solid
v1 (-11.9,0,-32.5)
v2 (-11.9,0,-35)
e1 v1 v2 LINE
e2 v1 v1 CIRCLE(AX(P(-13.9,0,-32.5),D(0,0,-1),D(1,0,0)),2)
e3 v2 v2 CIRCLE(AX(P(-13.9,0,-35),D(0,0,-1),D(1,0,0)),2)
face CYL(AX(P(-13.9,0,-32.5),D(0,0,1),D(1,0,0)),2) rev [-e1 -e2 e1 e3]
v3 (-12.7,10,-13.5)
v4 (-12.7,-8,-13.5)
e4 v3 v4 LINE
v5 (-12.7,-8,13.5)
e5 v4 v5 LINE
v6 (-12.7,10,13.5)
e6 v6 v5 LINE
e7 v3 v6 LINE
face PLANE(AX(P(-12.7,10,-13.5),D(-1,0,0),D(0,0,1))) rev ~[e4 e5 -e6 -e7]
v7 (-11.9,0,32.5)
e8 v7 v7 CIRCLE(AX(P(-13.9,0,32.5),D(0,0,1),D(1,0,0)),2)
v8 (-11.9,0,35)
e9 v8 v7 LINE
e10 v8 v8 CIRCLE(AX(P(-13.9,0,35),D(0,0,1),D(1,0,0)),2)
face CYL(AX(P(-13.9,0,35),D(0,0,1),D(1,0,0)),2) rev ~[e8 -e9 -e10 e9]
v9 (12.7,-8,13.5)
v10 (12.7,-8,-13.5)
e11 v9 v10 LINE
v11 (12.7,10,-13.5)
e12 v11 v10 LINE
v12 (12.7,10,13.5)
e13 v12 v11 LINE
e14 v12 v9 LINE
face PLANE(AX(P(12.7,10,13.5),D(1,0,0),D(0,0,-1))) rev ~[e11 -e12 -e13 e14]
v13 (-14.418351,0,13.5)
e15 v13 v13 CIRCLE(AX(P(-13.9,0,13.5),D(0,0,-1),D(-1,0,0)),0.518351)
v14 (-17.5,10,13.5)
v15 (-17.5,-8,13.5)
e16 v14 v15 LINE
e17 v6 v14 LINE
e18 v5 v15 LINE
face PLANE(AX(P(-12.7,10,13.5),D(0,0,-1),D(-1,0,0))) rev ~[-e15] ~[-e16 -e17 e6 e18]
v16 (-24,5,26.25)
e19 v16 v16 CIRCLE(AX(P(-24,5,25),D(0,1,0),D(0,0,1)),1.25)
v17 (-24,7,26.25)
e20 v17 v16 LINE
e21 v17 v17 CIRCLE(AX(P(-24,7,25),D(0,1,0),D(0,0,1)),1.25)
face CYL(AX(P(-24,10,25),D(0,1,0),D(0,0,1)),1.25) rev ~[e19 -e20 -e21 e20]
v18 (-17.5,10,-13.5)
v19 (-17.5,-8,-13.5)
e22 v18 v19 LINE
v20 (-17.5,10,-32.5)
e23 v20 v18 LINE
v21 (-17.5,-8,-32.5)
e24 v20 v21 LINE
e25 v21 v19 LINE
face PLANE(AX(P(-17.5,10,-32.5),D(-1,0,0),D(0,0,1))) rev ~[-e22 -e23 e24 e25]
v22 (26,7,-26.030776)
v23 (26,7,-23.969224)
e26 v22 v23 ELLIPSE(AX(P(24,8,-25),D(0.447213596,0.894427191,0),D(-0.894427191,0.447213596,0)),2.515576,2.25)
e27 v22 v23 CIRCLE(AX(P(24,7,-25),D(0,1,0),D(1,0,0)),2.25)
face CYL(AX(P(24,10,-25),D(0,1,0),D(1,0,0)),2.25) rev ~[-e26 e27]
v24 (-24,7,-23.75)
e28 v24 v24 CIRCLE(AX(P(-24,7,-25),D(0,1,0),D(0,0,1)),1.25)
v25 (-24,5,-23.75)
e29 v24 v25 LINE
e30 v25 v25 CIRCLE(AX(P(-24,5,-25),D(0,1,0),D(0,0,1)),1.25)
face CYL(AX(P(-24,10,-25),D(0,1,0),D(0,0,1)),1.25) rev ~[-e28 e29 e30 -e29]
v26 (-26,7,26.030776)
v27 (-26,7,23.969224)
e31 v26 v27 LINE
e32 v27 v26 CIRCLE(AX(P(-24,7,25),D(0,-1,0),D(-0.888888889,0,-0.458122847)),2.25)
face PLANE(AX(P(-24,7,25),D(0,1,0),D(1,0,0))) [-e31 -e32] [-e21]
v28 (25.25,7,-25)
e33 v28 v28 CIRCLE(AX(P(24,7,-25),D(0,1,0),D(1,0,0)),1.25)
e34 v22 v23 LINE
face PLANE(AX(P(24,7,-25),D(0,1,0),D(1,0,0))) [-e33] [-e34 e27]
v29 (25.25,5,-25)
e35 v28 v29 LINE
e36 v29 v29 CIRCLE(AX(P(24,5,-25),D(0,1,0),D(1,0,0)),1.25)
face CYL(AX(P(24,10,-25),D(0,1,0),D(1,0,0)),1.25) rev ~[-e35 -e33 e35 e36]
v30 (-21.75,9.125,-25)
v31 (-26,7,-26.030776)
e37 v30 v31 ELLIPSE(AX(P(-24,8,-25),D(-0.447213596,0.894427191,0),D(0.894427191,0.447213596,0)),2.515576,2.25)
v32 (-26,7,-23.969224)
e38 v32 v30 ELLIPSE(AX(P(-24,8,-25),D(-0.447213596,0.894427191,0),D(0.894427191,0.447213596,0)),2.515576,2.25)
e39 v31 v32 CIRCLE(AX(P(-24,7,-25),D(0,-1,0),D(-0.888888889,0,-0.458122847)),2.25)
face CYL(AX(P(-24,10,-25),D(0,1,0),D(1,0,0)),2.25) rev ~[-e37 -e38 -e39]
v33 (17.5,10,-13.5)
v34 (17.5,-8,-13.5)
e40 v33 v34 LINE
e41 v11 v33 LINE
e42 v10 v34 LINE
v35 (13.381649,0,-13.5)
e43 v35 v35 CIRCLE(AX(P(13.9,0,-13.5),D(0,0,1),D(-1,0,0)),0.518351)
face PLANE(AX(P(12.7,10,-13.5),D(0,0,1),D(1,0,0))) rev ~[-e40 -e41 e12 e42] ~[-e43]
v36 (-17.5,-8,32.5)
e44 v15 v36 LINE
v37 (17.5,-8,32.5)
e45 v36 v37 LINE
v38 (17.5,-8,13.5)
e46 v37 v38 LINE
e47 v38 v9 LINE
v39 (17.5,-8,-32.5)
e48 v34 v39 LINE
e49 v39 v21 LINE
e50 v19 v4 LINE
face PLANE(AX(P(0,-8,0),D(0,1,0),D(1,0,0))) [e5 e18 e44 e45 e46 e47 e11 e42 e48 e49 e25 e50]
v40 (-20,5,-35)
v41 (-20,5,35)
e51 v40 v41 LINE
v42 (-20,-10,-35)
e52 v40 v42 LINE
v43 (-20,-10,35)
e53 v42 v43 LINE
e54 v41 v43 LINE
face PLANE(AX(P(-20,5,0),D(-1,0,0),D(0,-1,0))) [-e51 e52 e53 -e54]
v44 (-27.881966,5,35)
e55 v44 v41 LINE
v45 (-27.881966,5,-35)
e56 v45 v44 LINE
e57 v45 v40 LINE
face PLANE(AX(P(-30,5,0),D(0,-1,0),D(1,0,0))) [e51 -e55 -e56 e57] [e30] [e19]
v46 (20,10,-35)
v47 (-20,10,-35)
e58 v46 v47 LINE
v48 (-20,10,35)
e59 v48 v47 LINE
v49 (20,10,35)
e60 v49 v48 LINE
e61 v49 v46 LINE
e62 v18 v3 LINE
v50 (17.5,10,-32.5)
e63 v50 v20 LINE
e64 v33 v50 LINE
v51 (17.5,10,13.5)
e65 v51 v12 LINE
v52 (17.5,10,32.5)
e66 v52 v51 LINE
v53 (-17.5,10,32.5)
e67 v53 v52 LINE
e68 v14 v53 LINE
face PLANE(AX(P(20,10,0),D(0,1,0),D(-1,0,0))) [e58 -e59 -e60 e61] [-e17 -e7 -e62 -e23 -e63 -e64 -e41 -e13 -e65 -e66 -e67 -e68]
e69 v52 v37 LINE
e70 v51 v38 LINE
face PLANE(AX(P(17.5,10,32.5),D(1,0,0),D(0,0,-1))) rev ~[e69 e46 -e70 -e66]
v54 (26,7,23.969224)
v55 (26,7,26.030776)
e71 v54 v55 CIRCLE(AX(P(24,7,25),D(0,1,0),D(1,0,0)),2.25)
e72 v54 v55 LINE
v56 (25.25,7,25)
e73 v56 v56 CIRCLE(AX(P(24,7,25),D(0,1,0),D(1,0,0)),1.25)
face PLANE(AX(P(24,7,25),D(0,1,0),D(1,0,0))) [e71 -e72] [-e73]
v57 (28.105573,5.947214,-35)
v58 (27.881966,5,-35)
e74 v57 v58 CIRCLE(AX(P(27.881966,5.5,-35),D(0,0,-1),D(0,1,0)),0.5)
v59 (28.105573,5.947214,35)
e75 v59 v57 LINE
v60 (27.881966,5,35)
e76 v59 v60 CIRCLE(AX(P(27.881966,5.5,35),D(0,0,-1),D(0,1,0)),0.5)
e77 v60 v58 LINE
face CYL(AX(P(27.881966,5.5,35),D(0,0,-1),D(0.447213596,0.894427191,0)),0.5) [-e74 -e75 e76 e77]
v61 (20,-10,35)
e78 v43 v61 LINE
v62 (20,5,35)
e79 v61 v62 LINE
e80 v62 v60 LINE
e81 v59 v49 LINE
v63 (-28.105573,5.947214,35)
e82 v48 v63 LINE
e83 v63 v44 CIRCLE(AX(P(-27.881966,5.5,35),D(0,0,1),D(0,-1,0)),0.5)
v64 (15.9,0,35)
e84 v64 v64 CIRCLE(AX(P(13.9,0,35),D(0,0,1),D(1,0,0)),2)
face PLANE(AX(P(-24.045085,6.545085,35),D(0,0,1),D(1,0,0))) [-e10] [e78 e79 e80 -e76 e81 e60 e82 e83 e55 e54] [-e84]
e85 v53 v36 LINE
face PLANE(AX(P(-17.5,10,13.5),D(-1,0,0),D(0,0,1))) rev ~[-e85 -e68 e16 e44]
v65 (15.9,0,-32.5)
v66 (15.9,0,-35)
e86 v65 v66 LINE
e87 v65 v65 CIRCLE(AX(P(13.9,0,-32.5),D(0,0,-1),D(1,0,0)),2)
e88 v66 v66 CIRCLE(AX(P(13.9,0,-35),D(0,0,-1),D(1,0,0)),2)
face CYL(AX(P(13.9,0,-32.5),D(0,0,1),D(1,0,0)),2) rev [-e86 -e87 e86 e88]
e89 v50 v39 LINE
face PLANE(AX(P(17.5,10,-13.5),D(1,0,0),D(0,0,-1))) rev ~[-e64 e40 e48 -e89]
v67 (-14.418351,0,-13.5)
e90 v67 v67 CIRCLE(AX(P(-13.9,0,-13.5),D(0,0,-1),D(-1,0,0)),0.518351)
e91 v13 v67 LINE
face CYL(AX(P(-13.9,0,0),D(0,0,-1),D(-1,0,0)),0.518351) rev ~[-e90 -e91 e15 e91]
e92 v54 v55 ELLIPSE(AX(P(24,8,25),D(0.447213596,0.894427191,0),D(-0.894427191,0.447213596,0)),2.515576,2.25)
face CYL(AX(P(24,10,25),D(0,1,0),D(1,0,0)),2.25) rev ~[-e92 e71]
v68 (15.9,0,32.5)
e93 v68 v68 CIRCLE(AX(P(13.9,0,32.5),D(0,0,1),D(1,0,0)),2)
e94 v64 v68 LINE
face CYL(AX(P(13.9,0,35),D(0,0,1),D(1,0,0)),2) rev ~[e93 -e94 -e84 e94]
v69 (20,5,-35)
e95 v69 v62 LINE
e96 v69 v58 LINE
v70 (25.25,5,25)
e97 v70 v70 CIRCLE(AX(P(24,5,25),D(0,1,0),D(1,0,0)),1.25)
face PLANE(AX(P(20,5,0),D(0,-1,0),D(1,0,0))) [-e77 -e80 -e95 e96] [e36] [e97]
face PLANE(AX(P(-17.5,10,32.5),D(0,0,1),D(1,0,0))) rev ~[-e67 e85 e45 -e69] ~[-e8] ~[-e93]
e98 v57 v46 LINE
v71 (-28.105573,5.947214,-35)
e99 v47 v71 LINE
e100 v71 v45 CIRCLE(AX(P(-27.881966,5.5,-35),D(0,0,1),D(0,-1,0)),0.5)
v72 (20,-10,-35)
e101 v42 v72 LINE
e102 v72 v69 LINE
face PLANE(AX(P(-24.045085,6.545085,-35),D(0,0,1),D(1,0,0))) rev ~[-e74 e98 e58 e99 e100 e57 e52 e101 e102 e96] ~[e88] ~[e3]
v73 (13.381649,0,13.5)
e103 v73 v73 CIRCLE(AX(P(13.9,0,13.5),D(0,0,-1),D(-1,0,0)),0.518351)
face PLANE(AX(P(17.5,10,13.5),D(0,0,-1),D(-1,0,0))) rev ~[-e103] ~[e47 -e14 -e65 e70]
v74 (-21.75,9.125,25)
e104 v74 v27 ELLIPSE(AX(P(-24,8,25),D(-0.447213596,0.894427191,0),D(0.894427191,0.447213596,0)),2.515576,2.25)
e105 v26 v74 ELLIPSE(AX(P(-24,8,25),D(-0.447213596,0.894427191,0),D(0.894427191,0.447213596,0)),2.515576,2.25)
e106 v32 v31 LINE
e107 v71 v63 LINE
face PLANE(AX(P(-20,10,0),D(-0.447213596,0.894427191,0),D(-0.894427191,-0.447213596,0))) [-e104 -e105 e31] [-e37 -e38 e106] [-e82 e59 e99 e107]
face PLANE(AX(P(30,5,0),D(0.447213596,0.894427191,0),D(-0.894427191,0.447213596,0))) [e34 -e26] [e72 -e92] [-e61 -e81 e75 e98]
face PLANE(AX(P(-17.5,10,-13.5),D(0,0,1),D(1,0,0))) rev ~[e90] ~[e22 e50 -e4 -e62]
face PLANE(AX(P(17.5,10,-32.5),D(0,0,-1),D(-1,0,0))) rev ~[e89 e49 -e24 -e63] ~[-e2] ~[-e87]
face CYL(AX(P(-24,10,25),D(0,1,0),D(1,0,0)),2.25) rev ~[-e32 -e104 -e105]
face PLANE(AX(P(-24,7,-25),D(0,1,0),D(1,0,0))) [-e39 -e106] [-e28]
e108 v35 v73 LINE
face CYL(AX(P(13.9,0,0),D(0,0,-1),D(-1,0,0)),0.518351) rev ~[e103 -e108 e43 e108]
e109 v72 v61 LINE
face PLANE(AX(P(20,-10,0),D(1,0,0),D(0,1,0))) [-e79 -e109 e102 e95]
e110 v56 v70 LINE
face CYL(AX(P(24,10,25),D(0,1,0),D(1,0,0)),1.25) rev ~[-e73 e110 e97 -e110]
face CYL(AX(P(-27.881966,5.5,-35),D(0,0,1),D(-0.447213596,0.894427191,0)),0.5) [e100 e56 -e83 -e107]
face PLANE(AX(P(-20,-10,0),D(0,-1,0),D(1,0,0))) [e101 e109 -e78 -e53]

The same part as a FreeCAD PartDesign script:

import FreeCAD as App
import Part
import Sketcher
from FreeCAD import Vector


def edges_at(feature, points):
    """Names of the edges that pass closest to the given points."""
    edges = feature.Shape.Edges
    near = lambda p: min(range(len(edges)), key=lambda i: edges[i].distToShape(Part.Vertex(*p))[0])
    return sorted({f"Edge{near(p) + 1}" for p in points})


def add_polygon(sketch, points):
    """Adds a closed chain of lines whose ends are joined by coincident constraints."""
    first, n = sketch.GeometryCount, len(points)
    for a, b in zip(points, points[1:] + points[:1]):
        sketch.addGeometry(Part.LineSegment(App.Vector(*a, 0), App.Vector(*b, 0)), False)
    for i in range(n):
        sketch.addConstraint(Sketcher.Constraint("Coincident", first + i, 2, first + (i + 1) % n, 1))

doc = App.newDocument("Part")
body = doc.addObject("PartDesign::Body", "Body")

# Sketch on XY plane
sketch1 = body.newObject("Sketcher::SketchObject", "Sketch")
sketch1.AttachmentSupport = (doc.getObject("XY_Plane"), [""])
sketch1.MapMode = "FlatFace"
add_polygon(sketch1, [(-20, 10), (-30, 5), (-20, 5), (-20, -10), (20, -10), (20, 5), (30, 5), (20, 10)])  # lines 0-7
sketch1.addConstraint(Sketcher.Constraint("Horizontal", 1))
sketch1.addConstraint(Sketcher.Constraint("Vertical", 2))
sketch1.addConstraint(Sketcher.Constraint("Horizontal", 3))
sketch1.addConstraint(Sketcher.Constraint("Vertical", 4))
sketch1.addConstraint(Sketcher.Constraint("Horizontal", 5))
sketch1.addConstraint(Sketcher.Constraint("Horizontal", 7))
sketch1.addConstraint(Sketcher.Constraint("Symmetric", 2, 2, 6, 2, -1, 1))
sketch1.addConstraint(Sketcher.Constraint("Symmetric", 1, 2, 4, 2, -2))
sketch1.addConstraint(Sketcher.Constraint("Vertical", 2, 2, 7, 2))
sketch1.addConstraint(Sketcher.Constraint("Equal", 1, 5))
sketch1.addConstraint(Sketcher.Constraint("DistanceX", 1, 1, 1, 2, 10.0))
sketch1.addConstraint(Sketcher.Constraint("DistanceX", 3, 1, 3, 2, 40.0))
sketch1.addConstraint(Sketcher.Constraint("DistanceY", 2, 2, 2, 1, 15.0))
sketch1.addConstraint(Sketcher.Constraint("DistanceY", -1, 1, 0, 2, 5.0))
pad1 = body.newObject("PartDesign::Pad", "Pad")
pad1.Profile = sketch1
pad1.Length = 70
pad1.Midplane = True

# Sketch on XZ plane
sketch2 = body.newObject("Sketcher::SketchObject", "Sketch001")
sketch2.AttachmentSupport = (doc.getObject("XZ_Plane"), [""])
sketch2.MapMode = "FlatFace"
sketch2.AttachmentOffset = App.Placement(Vector(0, 0, -10), App.Rotation())
add_polygon(sketch2, [(-17.5, 13.5), (-17.5, 32.5), (17.5, 32.5), (17.5, 13.5), (12.7, 13.5), (12.7, -13.5), (17.5, -13.5), (17.5, -32.5), (-17.5, -32.5), (-17.5, -13.5), (-12.7, -13.5), (-12.7, 13.5)])  # lines 0-11
sketch2.addConstraint(Sketcher.Constraint("Vertical", 0))
sketch2.addConstraint(Sketcher.Constraint("Horizontal", 1))
sketch2.addConstraint(Sketcher.Constraint("Vertical", 2))
sketch2.addConstraint(Sketcher.Constraint("Horizontal", 3))
sketch2.addConstraint(Sketcher.Constraint("Vertical", 4))
sketch2.addConstraint(Sketcher.Constraint("Horizontal", 5))
sketch2.addConstraint(Sketcher.Constraint("Vertical", 6))
sketch2.addConstraint(Sketcher.Constraint("Horizontal", 7))
sketch2.addConstraint(Sketcher.Constraint("Vertical", 8))
sketch2.addConstraint(Sketcher.Constraint("Horizontal", 9))
sketch2.addConstraint(Sketcher.Constraint("Vertical", 10))
sketch2.addConstraint(Sketcher.Constraint("Horizontal", 11))
sketch2.addConstraint(Sketcher.Constraint("Symmetric", 0, 2, 6, 2, -1, 1))
sketch2.addConstraint(Sketcher.Constraint("Symmetric", 2, 2, 8, 2, -1, 1))
sketch2.addConstraint(Sketcher.Constraint("Symmetric", 4, 2, 10, 2, -1, 1))
sketch2.addConstraint(Sketcher.Constraint("Symmetric", 5, 2, 8, 2, -2))
sketch2.addConstraint(Sketcher.Constraint("DistanceX", 1, 1, 1, 2, 35.0))
sketch2.addConstraint(Sketcher.Constraint("DistanceY", 0, 1, 0, 2, 19.0))
sketch2.addConstraint(Sketcher.Constraint("DistanceY", 4, 2, 4, 1, 27.0))
sketch2.addConstraint(Sketcher.Constraint("DistanceX", 3, 2, 3, 1, 4.8))
pocket1 = body.newObject("PartDesign::Pocket", "Pocket")
pocket1.Profile = sketch2
pocket1.Length = 18
pocket1.Reversed = True

# Sketch on XZ plane
sketch3 = body.newObject("Sketcher::SketchObject", "Sketch002")
sketch3.AttachmentSupport = (doc.getObject("XZ_Plane"), [""])
sketch3.MapMode = "FlatFace"
sketch3.AttachmentOffset = App.Placement(Vector(0, 0, -10), App.Rotation())
sketch3.addGeometry(Part.Circle(Vector(-24, -25, 0), Vector(0, 0, 1), 1.2), False)
sketch3.addGeometry(Part.Circle(Vector(-24, 25, 0), Vector(0, 0, 1), 1.2), False)
sketch3.addGeometry(Part.Circle(Vector(24, -25, 0), Vector(0, 0, 1), 1.2), False)
sketch3.addGeometry(Part.Circle(Vector(24, 25, 0), Vector(0, 0, 1), 1.2), False)
sketch3.addConstraint(Sketcher.Constraint("Equal", 0, 1))
sketch3.addConstraint(Sketcher.Constraint("Equal", 1, 2))
sketch3.addConstraint(Sketcher.Constraint("Equal", 2, 3))
sketch3.addConstraint(Sketcher.Constraint("Symmetric", 1, 3, 2, 3, -1, 1))
sketch3.addConstraint(Sketcher.Constraint("Symmetric", 0, 3, 3, 3, -1, 1))
sketch3.addConstraint(Sketcher.Constraint("Symmetric", 0, 3, 2, 3, -2))
sketch3.addConstraint(Sketcher.Constraint("Diameter", 0, 2.5))
sketch3.addConstraint(Sketcher.Constraint("DistanceX", 0, 3, -1, 1, 24.0))
sketch3.addConstraint(Sketcher.Constraint("DistanceY", 0, 3, -1, 1, 25.0))
pocket2 = body.newObject("PartDesign::Pocket", "Pocket001")
pocket2.Profile = sketch3
pocket2.Type = "ThroughAll"
pocket2.Reversed = True

# Sketch on XY plane
sketch4 = body.newObject("Sketcher::SketchObject", "Sketch003")
sketch4.AttachmentSupport = (doc.getObject("XY_Plane"), [""])
sketch4.MapMode = "FlatFace"
sketch4.addGeometry(Part.Circle(Vector(13.9, 0, 0), Vector(0, 0, 1), 0.5), False)
sketch4.addGeometry(Part.Circle(Vector(-13.9, 0, 0), Vector(0, 0, 1), 0.5), False)
sketch4.addConstraint(Sketcher.Constraint("Equal", 0, 1))
sketch4.addConstraint(Sketcher.Constraint("Symmetric", 0, 3, 1, 3, -1, 1))
sketch4.addConstraint(Sketcher.Constraint("PointOnObject", 0, 3, -1))
sketch4.addConstraint(Sketcher.Constraint("Diameter", 0, 1.036701))
sketch4.addConstraint(Sketcher.Constraint("DistanceX", -1, 1, 0, 3, 13.9))
pocket3 = body.newObject("PartDesign::Pocket", "Pocket002")
pocket3.Profile = sketch4
pocket3.Length = 60
pocket3.Midplane = True
doc.recompute()

fillet = body.newObject("PartDesign::Fillet", "Fillet")
fillet.Base = (pocket3, edges_at(pocket3, [(-30, 5, 0), (30, 5, 0)]))
fillet.Radius = 0.5

# Sketch on XZ plane
sketch5 = body.newObject("Sketcher::SketchObject", "Sketch004")
sketch5.AttachmentSupport = (doc.getObject("XZ_Plane"), [""])
sketch5.MapMode = "FlatFace"
sketch5.AttachmentOffset = App.Placement(Vector(0, 0, -10), App.Rotation())
sketch5.addGeometry(Part.Circle(Vector(-24, -25, 0), Vector(0, 0, 1), 2.2), False)
sketch5.addGeometry(Part.Circle(Vector(24, -25, 0), Vector(0, 0, 1), 2.2), False)
sketch5.addGeometry(Part.Circle(Vector(-24, 25, 0), Vector(0, 0, 1), 2.2), False)
sketch5.addGeometry(Part.Circle(Vector(24, 25, 0), Vector(0, 0, 1), 2.2), False)
sketch5.addConstraint(Sketcher.Constraint("Equal", 0, 1))
sketch5.addConstraint(Sketcher.Constraint("Equal", 1, 2))
sketch5.addConstraint(Sketcher.Constraint("Equal", 2, 3))
sketch5.addConstraint(Sketcher.Constraint("Symmetric", 1, 3, 2, 3, -1, 1))
sketch5.addConstraint(Sketcher.Constraint("Symmetric", 0, 3, 3, 3, -1, 1))
sketch5.addConstraint(Sketcher.Constraint("Symmetric", 0, 3, 1, 3, -2))
sketch5.addConstraint(Sketcher.Constraint("Diameter", 0, 4.5))
sketch5.addConstraint(Sketcher.Constraint("DistanceX", 0, 3, -1, 1, 24.0))
sketch5.addConstraint(Sketcher.Constraint("DistanceY", 0, 3, -1, 1, 25.0))
pocket4 = body.newObject("PartDesign::Pocket", "Pocket003")
pocket4.Profile = sketch5
pocket4.Length = 3
pocket4.Reversed = True

# Sketch on XY plane
sketch6 = body.newObject("Sketcher::SketchObject", "Sketch005")
sketch6.AttachmentSupport = (doc.getObject("XY_Plane"), [""])
sketch6.MapMode = "FlatFace"
sketch6.AttachmentOffset = App.Placement(Vector(0, 0, 35), App.Rotation())
sketch6.addGeometry(Part.Circle(Vector(-13.9, 0, 0), Vector(0, 0, 1), 2), False)
sketch6.addGeometry(Part.Circle(Vector(13.9, 0, 0), Vector(0, 0, 1), 2), False)
sketch6.addConstraint(Sketcher.Constraint("Equal", 0, 1))
sketch6.addConstraint(Sketcher.Constraint("Symmetric", 0, 3, 1, 3, -1, 1))
sketch6.addConstraint(Sketcher.Constraint("PointOnObject", 0, 3, -1))
sketch6.addConstraint(Sketcher.Constraint("Diameter", 0, 4.0))
sketch6.addConstraint(Sketcher.Constraint("DistanceX", 0, 3, -1, 1, 13.9))
pocket5 = body.newObject("PartDesign::Pocket", "Pocket004")
pocket5.Profile = sketch6
pocket5.Length = 2.5

# Sketch on XY plane
sketch7 = body.newObject("Sketcher::SketchObject", "Sketch006")
sketch7.AttachmentSupport = (doc.getObject("XY_Plane"), [""])
sketch7.MapMode = "FlatFace"
sketch7.AttachmentOffset = App.Placement(Vector(0, 0, -32.5), App.Rotation())
sketch7.addGeometry(Part.Circle(Vector(-13.9, 0, 0), Vector(0, 0, 1), 2), False)
sketch7.addGeometry(Part.Circle(Vector(13.9, 0, 0), Vector(0, 0, 1), 2), False)
sketch7.addConstraint(Sketcher.Constraint("Equal", 0, 1))
sketch7.addConstraint(Sketcher.Constraint("Symmetric", 0, 3, 1, 3, -1, 1))
sketch7.addConstraint(Sketcher.Constraint("PointOnObject", 0, 3, -1))
sketch7.addConstraint(Sketcher.Constraint("Diameter", 0, 4.0))
sketch7.addConstraint(Sketcher.Constraint("DistanceX", 0, 3, -1, 1, 13.9))
pocket6 = body.newObject("PartDesign::Pocket", "Pocket005")
pocket6.Profile = sketch7
pocket6.Length = 2.5

doc.recompute()
